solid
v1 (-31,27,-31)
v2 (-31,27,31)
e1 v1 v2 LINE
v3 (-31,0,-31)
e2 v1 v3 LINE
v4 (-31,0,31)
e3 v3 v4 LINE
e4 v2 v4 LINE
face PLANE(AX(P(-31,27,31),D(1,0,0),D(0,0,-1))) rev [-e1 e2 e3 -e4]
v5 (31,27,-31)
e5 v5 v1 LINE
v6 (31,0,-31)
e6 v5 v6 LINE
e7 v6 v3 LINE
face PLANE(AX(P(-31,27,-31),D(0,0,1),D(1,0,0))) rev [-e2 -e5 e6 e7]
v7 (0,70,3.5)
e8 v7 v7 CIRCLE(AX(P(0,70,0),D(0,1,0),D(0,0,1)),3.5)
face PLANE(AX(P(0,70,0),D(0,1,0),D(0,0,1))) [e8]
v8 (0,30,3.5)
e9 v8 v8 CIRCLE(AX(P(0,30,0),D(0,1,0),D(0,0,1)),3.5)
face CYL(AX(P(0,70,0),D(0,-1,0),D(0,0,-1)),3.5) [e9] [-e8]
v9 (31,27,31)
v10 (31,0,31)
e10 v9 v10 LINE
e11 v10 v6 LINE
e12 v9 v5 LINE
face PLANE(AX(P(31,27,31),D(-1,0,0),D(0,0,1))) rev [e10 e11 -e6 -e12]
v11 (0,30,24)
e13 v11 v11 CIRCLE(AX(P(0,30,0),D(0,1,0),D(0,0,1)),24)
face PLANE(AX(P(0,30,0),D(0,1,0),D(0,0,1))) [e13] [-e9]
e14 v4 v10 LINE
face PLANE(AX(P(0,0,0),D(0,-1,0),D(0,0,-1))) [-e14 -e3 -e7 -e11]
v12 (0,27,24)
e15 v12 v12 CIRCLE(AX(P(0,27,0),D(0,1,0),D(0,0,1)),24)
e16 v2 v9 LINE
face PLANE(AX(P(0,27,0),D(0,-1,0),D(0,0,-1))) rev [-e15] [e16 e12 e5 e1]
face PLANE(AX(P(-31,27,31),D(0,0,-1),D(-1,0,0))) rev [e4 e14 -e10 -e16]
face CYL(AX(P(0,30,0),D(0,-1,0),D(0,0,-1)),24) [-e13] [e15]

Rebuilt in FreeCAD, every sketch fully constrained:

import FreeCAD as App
import Part
import Sketcher


def add_polygon(sketch, points):
    """Adds a closed chain of lines whose ends are joined by coincident constraints."""
    first, n = sketch.GeometryCount, len(points)
    for a, b in zip(points, points[1:] + points[:1]):
        sketch.addGeometry(Part.LineSegment(App.Vector(*a, 0), App.Vector(*b, 0)), False)
    for i in range(n):
        sketch.addConstraint(Sketcher.Constraint("Coincident", first + i, 2, first + (i + 1) % n, 1))

doc = App.newDocument("Part")
body = doc.addObject("PartDesign::Body", "Body")

sketch1 = body.newObject("Sketcher::SketchObject", "Sketch")
sketch1.AttachmentSupport = (doc.getObject("XZ_Plane"), [""])
sketch1.MapMode = "FlatFace"
add_polygon(sketch1, [(-31, -31), (-31, 31), (31, 31), (31, -31)])
sketch1.addConstraint([
    Sketcher.Constraint("Vertical", 0),
    Sketcher.Constraint("Horizontal", 1),
    Sketcher.Constraint("Vertical", 2),
    Sketcher.Constraint("Horizontal", 3),
    Sketcher.Constraint("Symmetric", 0, 2, 2, 2, -1, 1),
    Sketcher.Constraint("Equal", 3, 0),
    Sketcher.Constraint("DistanceX", 1, 1, 1, 2, 62.0),
])
pad1 = body.newObject("PartDesign::Pad", "Pad")
pad1.Profile = sketch1
pad1.Length = 27
pad1.Reversed = True

sketch2 = body.newObject("Sketcher::SketchObject", "Sketch001")
sketch2.AttachmentSupport = (doc.getObject("XZ_Plane"), [""])
sketch2.MapMode = "FlatFace"
sketch2.AttachmentOffset = App.Placement(App.Vector(0, 0, -27), App.Rotation())
sketch2.addGeometry(Part.Circle(App.Vector(0, 0, 0), App.Vector(0, 0, 1), 24), False)
sketch2.addConstraint([
    Sketcher.Constraint("Coincident", 0, 3, -1, 1),
    Sketcher.Constraint("Diameter", 0, 48.0),
])
pad2 = body.newObject("PartDesign::Pad", "Pad001")
pad2.Profile = sketch2
pad2.Length = 3
pad2.Reversed = True

sketch3 = body.newObject("Sketcher::SketchObject", "Sketch002")
sketch3.AttachmentSupport = (doc.getObject("XZ_Plane"), [""])
sketch3.MapMode = "FlatFace"
sketch3.AttachmentOffset = App.Placement(App.Vector(0, 0, -30), App.Rotation())
sketch3.addGeometry(Part.Circle(App.Vector(0, 0, 0), App.Vector(0, 0, 1), 3.5), False)
sketch3.addConstraint([
    Sketcher.Constraint("Coincident", 0, 3, -1, 1),
    Sketcher.Constraint("Diameter", 0, 7.0),
])
pad3 = body.newObject("PartDesign::Pad", "Pad002")
pad3.Profile = sketch3
pad3.Length = 40
pad3.Reversed = True

doc.recompute()
